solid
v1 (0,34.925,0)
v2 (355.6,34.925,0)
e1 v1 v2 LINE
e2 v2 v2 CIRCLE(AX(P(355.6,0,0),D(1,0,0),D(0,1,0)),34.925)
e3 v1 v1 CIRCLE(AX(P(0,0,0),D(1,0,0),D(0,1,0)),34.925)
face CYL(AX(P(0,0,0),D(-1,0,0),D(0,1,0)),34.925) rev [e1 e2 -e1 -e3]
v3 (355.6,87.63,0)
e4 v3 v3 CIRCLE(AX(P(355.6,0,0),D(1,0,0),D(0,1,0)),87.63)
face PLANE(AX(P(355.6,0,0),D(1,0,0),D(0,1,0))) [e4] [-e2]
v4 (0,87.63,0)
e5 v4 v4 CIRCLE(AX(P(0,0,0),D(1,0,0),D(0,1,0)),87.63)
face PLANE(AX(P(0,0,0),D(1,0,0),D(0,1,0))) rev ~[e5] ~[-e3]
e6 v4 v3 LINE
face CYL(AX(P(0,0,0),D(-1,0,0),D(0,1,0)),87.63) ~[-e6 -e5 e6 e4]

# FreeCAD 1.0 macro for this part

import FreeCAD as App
import Part
import Sketcher

V = App.Vector
Q = App.Units.Quantity

doc = App.newDocument("Part")
body = doc.addObject("PartDesign::Body", "Body")

sketch1 = doc.addObject("Sketcher::SketchObject", "Sketch")
body.addObject(sketch1)
sketch1.AttachmentSupport = (doc.YZ_Plane, [""])
sketch1.MapMode = "FlatFace"
sketch1.addGeometry([
    Part.Circle(V(0, 0, 0), V(0, 0, 1), 87.63),
    Part.Circle(V(0, 0, 0), V(0, 0, 1), 34.925),
], False)
sketch1.addConstraint([
    Sketcher.Constraint("Coincident", 0, 3, -1, 1),
    Sketcher.Constraint("Coincident", 1, 3, -1, 1),
    Sketcher.Constraint("Diameter", 0, Q("6.9 in")),
    Sketcher.Constraint("Diameter", 1, Q("2.75 in")),
])
pad1 = doc.addObject("PartDesign::Pad", "Pad")
body.addObject(pad1)
pad1.Profile = sketch1
pad1.Length = Q("14 in")

doc.recompute()
